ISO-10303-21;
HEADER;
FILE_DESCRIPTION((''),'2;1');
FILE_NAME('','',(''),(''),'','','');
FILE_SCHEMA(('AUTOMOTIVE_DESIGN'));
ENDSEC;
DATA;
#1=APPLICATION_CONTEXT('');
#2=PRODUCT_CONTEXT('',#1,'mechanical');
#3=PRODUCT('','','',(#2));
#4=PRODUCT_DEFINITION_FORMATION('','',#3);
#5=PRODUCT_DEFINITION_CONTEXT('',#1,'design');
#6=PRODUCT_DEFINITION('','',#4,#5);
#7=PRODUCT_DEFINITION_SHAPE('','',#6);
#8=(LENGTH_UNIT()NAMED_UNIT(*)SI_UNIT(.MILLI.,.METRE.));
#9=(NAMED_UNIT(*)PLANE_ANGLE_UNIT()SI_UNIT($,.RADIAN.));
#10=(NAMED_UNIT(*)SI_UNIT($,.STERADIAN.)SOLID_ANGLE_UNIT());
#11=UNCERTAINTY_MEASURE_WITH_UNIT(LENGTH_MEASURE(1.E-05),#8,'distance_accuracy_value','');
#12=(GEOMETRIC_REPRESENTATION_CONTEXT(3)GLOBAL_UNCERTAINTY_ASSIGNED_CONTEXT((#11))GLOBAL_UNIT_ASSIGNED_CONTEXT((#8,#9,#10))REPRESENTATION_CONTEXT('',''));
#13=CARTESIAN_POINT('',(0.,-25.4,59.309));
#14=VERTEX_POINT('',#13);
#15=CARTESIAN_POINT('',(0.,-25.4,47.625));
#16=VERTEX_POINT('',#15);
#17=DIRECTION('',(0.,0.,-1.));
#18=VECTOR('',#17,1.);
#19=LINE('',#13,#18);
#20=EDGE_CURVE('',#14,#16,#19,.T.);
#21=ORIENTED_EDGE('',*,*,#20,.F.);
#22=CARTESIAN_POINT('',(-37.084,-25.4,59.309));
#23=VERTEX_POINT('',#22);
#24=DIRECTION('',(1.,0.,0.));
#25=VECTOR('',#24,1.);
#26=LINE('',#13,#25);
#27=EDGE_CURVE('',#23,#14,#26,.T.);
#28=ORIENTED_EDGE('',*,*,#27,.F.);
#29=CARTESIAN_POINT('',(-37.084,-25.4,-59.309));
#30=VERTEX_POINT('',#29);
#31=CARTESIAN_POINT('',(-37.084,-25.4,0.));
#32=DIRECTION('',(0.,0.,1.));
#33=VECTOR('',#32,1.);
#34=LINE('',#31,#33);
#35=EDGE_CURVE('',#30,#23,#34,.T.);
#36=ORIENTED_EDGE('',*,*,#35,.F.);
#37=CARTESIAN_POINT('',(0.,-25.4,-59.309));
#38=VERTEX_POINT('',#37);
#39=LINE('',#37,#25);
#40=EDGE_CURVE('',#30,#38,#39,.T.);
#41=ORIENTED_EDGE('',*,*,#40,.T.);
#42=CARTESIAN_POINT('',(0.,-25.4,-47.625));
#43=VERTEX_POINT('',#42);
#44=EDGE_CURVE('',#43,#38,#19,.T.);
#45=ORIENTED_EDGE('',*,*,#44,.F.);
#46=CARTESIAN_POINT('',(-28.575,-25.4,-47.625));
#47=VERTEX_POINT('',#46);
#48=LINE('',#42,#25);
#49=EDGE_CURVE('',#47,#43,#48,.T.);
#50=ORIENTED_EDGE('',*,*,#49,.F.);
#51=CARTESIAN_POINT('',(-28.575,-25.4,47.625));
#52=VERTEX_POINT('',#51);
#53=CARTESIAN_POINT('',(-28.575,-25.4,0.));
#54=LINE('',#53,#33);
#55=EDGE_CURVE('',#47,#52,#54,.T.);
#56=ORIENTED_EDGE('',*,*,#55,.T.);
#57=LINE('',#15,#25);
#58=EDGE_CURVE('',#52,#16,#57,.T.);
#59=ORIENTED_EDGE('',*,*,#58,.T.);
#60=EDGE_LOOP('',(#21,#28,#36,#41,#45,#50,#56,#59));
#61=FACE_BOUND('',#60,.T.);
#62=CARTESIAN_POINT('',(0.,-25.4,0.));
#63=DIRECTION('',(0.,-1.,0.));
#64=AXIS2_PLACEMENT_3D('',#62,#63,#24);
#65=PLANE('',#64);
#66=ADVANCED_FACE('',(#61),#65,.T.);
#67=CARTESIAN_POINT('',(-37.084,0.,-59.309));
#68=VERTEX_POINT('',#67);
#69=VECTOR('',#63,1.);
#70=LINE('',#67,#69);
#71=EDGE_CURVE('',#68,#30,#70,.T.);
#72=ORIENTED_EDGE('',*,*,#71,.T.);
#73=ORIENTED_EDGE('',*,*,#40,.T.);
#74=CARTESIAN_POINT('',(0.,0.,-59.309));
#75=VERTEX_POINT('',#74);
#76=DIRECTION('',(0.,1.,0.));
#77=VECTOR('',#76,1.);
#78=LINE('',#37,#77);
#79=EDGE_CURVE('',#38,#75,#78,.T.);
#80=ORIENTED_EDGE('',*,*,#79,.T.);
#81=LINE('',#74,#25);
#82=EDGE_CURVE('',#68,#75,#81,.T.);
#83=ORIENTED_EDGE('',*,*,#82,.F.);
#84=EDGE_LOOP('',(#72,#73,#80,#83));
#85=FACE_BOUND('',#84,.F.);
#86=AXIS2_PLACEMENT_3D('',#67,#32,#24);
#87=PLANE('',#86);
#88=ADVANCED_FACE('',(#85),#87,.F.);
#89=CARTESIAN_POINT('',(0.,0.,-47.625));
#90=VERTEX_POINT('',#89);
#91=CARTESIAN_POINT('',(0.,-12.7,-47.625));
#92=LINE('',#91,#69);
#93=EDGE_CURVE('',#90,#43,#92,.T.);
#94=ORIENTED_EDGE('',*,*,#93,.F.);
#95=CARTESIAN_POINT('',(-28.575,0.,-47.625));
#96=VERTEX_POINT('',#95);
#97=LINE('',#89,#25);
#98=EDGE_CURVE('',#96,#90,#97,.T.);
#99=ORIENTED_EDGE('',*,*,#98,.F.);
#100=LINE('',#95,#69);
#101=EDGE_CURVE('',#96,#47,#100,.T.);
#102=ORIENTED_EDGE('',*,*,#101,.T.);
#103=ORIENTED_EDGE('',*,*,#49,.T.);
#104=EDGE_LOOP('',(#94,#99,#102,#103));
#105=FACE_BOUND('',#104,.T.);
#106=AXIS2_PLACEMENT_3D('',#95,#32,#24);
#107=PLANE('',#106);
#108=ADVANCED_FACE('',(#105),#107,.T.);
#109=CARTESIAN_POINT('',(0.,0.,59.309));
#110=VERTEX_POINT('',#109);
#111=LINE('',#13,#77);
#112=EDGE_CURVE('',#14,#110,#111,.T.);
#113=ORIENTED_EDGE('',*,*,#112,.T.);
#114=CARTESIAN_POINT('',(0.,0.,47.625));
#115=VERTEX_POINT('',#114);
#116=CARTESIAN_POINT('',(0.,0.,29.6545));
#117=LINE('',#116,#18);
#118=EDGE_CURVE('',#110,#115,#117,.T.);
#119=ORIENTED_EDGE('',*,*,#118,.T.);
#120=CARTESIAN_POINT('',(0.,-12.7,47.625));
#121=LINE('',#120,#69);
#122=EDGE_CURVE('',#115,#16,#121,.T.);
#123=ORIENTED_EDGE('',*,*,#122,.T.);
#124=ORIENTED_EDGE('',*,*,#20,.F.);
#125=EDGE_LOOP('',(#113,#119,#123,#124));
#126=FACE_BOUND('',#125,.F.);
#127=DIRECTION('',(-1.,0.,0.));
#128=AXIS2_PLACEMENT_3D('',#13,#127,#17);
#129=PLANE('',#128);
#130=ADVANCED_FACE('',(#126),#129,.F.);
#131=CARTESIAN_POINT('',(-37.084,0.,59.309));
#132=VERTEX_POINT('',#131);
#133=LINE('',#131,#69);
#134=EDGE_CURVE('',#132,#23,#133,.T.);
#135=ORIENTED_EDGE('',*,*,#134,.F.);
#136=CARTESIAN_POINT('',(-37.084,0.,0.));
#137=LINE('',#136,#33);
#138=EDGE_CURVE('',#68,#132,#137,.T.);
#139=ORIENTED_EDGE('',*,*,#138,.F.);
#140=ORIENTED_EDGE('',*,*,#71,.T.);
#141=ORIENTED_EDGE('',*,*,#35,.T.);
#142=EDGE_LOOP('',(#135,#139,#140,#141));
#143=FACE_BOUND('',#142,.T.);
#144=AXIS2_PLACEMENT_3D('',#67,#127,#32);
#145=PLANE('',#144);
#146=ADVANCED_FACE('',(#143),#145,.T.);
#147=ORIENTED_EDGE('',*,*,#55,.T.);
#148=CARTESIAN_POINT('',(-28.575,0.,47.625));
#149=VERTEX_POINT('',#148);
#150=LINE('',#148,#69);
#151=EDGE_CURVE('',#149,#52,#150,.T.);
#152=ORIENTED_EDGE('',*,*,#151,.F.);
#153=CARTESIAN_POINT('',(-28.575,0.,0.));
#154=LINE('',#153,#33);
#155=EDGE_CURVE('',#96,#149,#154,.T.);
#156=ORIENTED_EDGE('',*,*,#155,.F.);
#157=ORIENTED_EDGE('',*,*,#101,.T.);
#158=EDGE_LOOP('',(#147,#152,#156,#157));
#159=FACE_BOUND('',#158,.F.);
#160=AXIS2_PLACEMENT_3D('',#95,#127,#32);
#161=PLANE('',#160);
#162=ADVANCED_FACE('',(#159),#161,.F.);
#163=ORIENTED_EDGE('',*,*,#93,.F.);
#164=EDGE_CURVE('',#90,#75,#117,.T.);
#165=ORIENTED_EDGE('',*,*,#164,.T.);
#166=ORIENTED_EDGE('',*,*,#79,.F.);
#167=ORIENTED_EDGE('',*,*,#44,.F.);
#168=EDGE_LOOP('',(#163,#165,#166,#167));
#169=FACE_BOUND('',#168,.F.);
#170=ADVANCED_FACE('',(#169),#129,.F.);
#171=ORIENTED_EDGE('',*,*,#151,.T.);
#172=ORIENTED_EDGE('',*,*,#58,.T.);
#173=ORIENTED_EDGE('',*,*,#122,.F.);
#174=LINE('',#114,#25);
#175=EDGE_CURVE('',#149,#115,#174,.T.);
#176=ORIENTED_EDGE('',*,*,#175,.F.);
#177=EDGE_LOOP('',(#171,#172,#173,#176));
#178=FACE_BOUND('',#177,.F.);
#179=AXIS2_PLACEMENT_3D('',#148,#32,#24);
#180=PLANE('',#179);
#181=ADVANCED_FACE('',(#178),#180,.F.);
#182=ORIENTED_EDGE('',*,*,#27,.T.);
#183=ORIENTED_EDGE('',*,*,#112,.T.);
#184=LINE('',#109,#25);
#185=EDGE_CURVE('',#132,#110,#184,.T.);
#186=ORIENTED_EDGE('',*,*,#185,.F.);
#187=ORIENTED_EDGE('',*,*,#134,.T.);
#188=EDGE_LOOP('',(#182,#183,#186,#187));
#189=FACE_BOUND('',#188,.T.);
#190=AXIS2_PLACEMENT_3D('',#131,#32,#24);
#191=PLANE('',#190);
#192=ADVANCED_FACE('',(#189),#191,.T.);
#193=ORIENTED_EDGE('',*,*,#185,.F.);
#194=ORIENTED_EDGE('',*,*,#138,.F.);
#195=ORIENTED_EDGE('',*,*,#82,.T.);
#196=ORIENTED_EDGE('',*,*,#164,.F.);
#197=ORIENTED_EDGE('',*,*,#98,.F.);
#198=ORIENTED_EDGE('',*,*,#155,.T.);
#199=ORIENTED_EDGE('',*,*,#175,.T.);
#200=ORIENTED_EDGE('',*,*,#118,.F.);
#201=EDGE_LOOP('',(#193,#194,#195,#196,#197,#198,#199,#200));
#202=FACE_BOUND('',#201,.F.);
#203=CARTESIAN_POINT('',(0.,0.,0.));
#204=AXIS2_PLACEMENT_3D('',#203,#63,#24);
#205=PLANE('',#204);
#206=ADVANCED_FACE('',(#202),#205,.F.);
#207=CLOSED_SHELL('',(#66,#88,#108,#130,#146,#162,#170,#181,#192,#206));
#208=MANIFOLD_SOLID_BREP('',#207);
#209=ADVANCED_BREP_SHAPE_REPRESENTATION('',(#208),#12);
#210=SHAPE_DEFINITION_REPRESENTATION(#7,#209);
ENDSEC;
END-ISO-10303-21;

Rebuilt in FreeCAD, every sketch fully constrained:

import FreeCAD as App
import Part
import Sketcher
from FreeCAD import Vector
Q = App.Units.Quantity


def add_polygon(sketch, points):
    """Adds a closed chain of lines whose ends are joined by coincident constraints."""
    first, n = sketch.GeometryCount, len(points)
    for a, b in zip(points, points[1:] + points[:1]):
        sketch.addGeometry(Part.LineSegment(App.Vector(*a, 0), App.Vector(*b, 0)), False)
    for i in range(n):
        sketch.addConstraint(Sketcher.Constraint("Coincident", first + i, 2, first + (i + 1) % n, 1))

doc = App.newDocument("Part")
params = doc.addObject("Spreadsheet::Sheet", "Params")
for row, (alias, value) in enumerate([
    ("sketch1_width", "2.92 in"),
    ("sketch1_width2", "2.25 in"),
    ("sketch1_height", "4.67 in"),
    ("sketch1_height2", "3.75 in"),
    ("pad1_length", "1 in"),
    ("sketch2_width", "1.46 in"),
    ("sketch2_height", "4.67 in"),
], start=1):
    params.set(f"A{row}", alias)
    params.set(f"B{row}", "=" + value)
    params.setAlias(f"B{row}", alias)

body = doc.addObject("PartDesign::Body", "Body")

# Sketch on XZ plane
sketch1 = doc.addObject("Sketcher::SketchObject", "Sketch")
body.addObject(sketch1)
sketch1.AttachmentSupport = (doc.XZ_Plane, [""])
sketch1.MapMode = "FlatFace"
add_polygon(sketch1, [(-37, 59), (-37, -59), (37, -59), (37, 59)])  # lines 0-3
add_polygon(sketch1, [(29, -48), (-29, -48), (-29, 48), (29, 48)])  # lines 4-7
sketch1.addConstraint([
    Sketcher.Constraint("Vertical", 0),
    Sketcher.Constraint("Horizontal", 1),
    Sketcher.Constraint("Vertical", 2),
    Sketcher.Constraint("Horizontal", 3),
    Sketcher.Constraint("Horizontal", 4),
    Sketcher.Constraint("Vertical", 5),
    Sketcher.Constraint("Horizontal", 6),
    Sketcher.Constraint("Vertical", 7),
    Sketcher.Constraint("Symmetric", 0, 2, 2, 2, -1, 1),
    Sketcher.Constraint("Symmetric", 4, 2, 6, 2, -1, 1),
    Sketcher.Constraint("DistanceX", 1, 1, 1, 2, Q("2.92 in")),
    Sketcher.Constraint("DistanceX", 4, 2, 4, 1, Q("2.25 in")),
    Sketcher.Constraint("DistanceY", 0, 2, 0, 1, Q("4.67 in")),
    Sketcher.Constraint("DistanceY", 5, 1, 5, 2, Q("3.75 in")),
])
sketch1.setExpression("Constraints[18]", "Params.sketch1_width")
sketch1.setExpression("Constraints[19]", "Params.sketch1_width2")
sketch1.setExpression("Constraints[20]", "Params.sketch1_height")
sketch1.setExpression("Constraints[21]", "Params.sketch1_height2")
pad1 = doc.addObject("PartDesign::Pad", "Pad")
body.addObject(pad1)
pad1.Profile = sketch1
pad1.setExpression("Length", "Params.pad1_length")

# Sketch on XZ plane
sketch2 = doc.addObject("Sketcher::SketchObject", "Sketch001")
body.addObject(sketch2)
sketch2.AttachmentSupport = (doc.XZ_Plane, [""])
sketch2.MapMode = "FlatFace"
sketch2.AttachmentOffset = App.Placement(Vector(0, 0, 1 * 25.4), App.Rotation())
add_polygon(sketch2, [(0, -59), (37, -59), (37, 59), (0, 59)])  # lines 0-3
sketch2.addConstraint([
    Sketcher.Constraint("Horizontal", 0),
    Sketcher.Constraint("Vertical", 1),
    Sketcher.Constraint("Horizontal", 2),
    Sketcher.Constraint("Vertical", 3),
    Sketcher.Constraint("Symmetric", 2, 2, 3, 2, -1, 1),
    Sketcher.Constraint("DistanceX", 0, 1, 0, 2, Q("1.46 in")),
    Sketcher.Constraint("DistanceY", 1, 1, 1, 2, Q("4.67 in")),
])
sketch2.setExpression("Constraints[9]", "Params.sketch2_width")
sketch2.setExpression("Constraints[10]", "Params.sketch2_height")
pocket1 = doc.addObject("PartDesign::Pocket", "Pocket")
body.addObject(pocket1)
pocket1.Profile = sketch2
pocket1.Type = "ThroughAll"

doc.recompute()
